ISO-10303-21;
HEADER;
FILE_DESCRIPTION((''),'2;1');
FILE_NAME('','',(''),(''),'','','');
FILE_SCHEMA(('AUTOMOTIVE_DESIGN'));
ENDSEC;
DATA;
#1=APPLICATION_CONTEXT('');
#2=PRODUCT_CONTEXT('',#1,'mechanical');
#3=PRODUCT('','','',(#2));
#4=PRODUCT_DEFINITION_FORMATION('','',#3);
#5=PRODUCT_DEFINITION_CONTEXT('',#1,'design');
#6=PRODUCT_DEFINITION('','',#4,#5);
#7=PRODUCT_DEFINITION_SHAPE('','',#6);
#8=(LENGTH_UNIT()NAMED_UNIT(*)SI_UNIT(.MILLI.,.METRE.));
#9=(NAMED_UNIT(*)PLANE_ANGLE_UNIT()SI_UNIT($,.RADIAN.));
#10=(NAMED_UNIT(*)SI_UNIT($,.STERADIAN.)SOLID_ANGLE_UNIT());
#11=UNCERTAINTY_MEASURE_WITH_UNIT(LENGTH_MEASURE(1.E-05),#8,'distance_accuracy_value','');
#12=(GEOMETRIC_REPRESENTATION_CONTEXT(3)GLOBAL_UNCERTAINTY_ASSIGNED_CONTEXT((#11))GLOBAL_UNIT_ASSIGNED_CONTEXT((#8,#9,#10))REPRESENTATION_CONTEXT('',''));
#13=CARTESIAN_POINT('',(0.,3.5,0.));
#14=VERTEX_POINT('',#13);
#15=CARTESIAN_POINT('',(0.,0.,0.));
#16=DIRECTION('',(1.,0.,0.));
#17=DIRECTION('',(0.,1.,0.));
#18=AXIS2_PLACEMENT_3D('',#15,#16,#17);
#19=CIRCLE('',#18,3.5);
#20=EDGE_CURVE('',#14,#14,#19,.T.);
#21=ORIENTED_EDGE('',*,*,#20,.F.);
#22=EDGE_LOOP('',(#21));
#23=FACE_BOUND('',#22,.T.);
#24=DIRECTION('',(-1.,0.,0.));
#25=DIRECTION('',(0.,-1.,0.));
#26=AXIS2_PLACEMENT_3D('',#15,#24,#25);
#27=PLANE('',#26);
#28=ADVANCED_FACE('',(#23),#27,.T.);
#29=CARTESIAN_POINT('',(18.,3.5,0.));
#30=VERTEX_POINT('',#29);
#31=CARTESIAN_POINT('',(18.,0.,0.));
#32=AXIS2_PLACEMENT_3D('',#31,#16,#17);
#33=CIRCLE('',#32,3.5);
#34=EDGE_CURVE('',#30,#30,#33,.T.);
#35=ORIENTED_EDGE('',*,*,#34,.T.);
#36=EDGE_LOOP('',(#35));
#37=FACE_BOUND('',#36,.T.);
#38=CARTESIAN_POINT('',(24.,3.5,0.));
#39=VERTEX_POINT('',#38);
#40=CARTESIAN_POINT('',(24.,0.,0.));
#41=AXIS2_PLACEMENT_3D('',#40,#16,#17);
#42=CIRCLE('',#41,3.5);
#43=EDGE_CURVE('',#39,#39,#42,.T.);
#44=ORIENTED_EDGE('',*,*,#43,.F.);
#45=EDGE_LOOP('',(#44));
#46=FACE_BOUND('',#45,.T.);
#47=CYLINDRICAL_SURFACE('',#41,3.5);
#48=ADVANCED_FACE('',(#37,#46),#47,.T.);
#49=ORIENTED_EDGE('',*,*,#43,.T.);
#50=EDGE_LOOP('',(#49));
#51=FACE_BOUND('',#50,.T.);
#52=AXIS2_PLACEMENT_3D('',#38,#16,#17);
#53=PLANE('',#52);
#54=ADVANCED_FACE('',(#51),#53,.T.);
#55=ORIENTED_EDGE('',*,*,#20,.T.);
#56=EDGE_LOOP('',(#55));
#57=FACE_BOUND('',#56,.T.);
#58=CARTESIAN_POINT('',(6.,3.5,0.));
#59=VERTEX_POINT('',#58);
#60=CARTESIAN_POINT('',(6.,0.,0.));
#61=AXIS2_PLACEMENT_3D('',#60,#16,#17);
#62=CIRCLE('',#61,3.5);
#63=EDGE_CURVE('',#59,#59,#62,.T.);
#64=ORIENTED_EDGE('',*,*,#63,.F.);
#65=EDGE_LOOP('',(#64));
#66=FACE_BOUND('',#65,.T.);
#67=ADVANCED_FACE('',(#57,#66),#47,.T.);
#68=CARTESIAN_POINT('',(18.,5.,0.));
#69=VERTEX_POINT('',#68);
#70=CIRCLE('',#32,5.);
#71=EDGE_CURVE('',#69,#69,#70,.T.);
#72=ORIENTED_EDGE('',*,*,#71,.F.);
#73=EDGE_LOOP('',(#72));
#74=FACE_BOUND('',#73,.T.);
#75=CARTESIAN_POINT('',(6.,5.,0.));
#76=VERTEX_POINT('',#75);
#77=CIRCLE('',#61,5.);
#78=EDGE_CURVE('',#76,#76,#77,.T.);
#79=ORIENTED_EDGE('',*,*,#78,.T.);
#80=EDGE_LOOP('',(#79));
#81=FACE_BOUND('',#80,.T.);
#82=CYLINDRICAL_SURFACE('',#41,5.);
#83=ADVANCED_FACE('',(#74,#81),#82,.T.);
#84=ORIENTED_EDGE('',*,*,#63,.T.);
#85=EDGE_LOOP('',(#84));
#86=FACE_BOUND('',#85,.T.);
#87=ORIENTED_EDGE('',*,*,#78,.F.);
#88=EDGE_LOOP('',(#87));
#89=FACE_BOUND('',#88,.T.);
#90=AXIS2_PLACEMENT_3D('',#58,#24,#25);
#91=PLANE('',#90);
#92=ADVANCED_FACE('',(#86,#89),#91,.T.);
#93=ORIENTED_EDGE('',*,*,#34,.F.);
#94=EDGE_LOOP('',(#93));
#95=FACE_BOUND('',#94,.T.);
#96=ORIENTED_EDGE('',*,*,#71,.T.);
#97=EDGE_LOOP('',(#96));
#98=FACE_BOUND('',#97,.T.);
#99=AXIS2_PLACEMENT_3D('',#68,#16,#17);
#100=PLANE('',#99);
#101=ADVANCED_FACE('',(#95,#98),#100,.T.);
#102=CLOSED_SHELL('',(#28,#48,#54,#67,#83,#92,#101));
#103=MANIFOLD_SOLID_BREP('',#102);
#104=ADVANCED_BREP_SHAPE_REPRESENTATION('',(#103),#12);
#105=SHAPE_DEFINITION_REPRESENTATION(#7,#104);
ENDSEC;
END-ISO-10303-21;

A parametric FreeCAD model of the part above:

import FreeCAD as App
import Part
import Sketcher

V = App.Vector

doc = App.newDocument("Part")
body = doc.addObject("PartDesign::Body", "Body")

# Sketch on XY plane
sketch1 = body.newObject("Sketcher::SketchObject", "Sketch")
sketch1.AttachmentSupport = (doc.getObject("XY_Plane"), [""])
sketch1.MapMode = "FlatFace"
sketch1.addGeometry(Part.LineSegment(V(0, 3.5, 0), V(0, 0, 0)), False)
sketch1.addGeometry(Part.LineSegment(V(0, 0, 0), V(24, 0, 0)), False)
sketch1.addGeometry(Part.LineSegment(V(24, 0, 0), V(24, 3.5, 0)), False)
sketch1.addGeometry(Part.LineSegment(V(24, 3.5, 0), V(18, 3.5, 0)), False)
sketch1.addGeometry(Part.LineSegment(V(18, 3.5, 0), V(18, 5, 0)), False)
sketch1.addGeometry(Part.LineSegment(V(18, 5, 0), V(6, 5, 0)), False)
sketch1.addGeometry(Part.LineSegment(V(6, 5, 0), V(6, 3.5, 0)), False)
sketch1.addGeometry(Part.LineSegment(V(6, 3.5, 0), V(0, 3.5, 0)), False)
sketch1.addConstraint(Sketcher.Constraint("Coincident", 0, 2, 1, 1))
sketch1.addConstraint(Sketcher.Constraint("Coincident", 1, 2, 2, 1))
sketch1.addConstraint(Sketcher.Constraint("Coincident", 2, 2, 3, 1))
sketch1.addConstraint(Sketcher.Constraint("Coincident", 3, 2, 4, 1))
sketch1.addConstraint(Sketcher.Constraint("Coincident", 4, 2, 5, 1))
sketch1.addConstraint(Sketcher.Constraint("Coincident", 5, 2, 6, 1))
sketch1.addConstraint(Sketcher.Constraint("Coincident", 6, 2, 7, 1))
sketch1.addConstraint(Sketcher.Constraint("Coincident", 7, 2, 0, 1))
sketch1.addConstraint(Sketcher.Constraint("Vertical", 0))
sketch1.addConstraint(Sketcher.Constraint("Horizontal", 1))
sketch1.addConstraint(Sketcher.Constraint("Vertical", 2))
sketch1.addConstraint(Sketcher.Constraint("Horizontal", 3))
sketch1.addConstraint(Sketcher.Constraint("Vertical", 4))
sketch1.addConstraint(Sketcher.Constraint("Horizontal", 5))
sketch1.addConstraint(Sketcher.Constraint("Vertical", 6))
sketch1.addConstraint(Sketcher.Constraint("Horizontal", 7))
sketch1.addConstraint(Sketcher.Constraint("Coincident", 0, 2, -1, 1))
sketch1.addConstraint(Sketcher.Constraint("Horizontal", 3, 2, 6, 2))
sketch1.addConstraint(Sketcher.Constraint("Equal", 3, 7))
sketch1.addConstraint(Sketcher.Constraint("DistanceX", 1, 1, 1, 2, 24.0))
sketch1.addConstraint(Sketcher.Constraint("DistanceX", 3, 2, 3, 1, 6.0))
sketch1.addConstraint(Sketcher.Constraint("DistanceY", 0, 2, 0, 1, 3.5))
sketch1.addConstraint(Sketcher.Constraint("DistanceY", 4, 1, 4, 2, 1.5))
revolution = body.newObject("PartDesign::Revolution", "Revolution")
revolution.Profile = sketch1
revolution.ReferenceAxis = (sketch1, ["H_Axis"])
revolution.Angle = 360

doc.recompute()
